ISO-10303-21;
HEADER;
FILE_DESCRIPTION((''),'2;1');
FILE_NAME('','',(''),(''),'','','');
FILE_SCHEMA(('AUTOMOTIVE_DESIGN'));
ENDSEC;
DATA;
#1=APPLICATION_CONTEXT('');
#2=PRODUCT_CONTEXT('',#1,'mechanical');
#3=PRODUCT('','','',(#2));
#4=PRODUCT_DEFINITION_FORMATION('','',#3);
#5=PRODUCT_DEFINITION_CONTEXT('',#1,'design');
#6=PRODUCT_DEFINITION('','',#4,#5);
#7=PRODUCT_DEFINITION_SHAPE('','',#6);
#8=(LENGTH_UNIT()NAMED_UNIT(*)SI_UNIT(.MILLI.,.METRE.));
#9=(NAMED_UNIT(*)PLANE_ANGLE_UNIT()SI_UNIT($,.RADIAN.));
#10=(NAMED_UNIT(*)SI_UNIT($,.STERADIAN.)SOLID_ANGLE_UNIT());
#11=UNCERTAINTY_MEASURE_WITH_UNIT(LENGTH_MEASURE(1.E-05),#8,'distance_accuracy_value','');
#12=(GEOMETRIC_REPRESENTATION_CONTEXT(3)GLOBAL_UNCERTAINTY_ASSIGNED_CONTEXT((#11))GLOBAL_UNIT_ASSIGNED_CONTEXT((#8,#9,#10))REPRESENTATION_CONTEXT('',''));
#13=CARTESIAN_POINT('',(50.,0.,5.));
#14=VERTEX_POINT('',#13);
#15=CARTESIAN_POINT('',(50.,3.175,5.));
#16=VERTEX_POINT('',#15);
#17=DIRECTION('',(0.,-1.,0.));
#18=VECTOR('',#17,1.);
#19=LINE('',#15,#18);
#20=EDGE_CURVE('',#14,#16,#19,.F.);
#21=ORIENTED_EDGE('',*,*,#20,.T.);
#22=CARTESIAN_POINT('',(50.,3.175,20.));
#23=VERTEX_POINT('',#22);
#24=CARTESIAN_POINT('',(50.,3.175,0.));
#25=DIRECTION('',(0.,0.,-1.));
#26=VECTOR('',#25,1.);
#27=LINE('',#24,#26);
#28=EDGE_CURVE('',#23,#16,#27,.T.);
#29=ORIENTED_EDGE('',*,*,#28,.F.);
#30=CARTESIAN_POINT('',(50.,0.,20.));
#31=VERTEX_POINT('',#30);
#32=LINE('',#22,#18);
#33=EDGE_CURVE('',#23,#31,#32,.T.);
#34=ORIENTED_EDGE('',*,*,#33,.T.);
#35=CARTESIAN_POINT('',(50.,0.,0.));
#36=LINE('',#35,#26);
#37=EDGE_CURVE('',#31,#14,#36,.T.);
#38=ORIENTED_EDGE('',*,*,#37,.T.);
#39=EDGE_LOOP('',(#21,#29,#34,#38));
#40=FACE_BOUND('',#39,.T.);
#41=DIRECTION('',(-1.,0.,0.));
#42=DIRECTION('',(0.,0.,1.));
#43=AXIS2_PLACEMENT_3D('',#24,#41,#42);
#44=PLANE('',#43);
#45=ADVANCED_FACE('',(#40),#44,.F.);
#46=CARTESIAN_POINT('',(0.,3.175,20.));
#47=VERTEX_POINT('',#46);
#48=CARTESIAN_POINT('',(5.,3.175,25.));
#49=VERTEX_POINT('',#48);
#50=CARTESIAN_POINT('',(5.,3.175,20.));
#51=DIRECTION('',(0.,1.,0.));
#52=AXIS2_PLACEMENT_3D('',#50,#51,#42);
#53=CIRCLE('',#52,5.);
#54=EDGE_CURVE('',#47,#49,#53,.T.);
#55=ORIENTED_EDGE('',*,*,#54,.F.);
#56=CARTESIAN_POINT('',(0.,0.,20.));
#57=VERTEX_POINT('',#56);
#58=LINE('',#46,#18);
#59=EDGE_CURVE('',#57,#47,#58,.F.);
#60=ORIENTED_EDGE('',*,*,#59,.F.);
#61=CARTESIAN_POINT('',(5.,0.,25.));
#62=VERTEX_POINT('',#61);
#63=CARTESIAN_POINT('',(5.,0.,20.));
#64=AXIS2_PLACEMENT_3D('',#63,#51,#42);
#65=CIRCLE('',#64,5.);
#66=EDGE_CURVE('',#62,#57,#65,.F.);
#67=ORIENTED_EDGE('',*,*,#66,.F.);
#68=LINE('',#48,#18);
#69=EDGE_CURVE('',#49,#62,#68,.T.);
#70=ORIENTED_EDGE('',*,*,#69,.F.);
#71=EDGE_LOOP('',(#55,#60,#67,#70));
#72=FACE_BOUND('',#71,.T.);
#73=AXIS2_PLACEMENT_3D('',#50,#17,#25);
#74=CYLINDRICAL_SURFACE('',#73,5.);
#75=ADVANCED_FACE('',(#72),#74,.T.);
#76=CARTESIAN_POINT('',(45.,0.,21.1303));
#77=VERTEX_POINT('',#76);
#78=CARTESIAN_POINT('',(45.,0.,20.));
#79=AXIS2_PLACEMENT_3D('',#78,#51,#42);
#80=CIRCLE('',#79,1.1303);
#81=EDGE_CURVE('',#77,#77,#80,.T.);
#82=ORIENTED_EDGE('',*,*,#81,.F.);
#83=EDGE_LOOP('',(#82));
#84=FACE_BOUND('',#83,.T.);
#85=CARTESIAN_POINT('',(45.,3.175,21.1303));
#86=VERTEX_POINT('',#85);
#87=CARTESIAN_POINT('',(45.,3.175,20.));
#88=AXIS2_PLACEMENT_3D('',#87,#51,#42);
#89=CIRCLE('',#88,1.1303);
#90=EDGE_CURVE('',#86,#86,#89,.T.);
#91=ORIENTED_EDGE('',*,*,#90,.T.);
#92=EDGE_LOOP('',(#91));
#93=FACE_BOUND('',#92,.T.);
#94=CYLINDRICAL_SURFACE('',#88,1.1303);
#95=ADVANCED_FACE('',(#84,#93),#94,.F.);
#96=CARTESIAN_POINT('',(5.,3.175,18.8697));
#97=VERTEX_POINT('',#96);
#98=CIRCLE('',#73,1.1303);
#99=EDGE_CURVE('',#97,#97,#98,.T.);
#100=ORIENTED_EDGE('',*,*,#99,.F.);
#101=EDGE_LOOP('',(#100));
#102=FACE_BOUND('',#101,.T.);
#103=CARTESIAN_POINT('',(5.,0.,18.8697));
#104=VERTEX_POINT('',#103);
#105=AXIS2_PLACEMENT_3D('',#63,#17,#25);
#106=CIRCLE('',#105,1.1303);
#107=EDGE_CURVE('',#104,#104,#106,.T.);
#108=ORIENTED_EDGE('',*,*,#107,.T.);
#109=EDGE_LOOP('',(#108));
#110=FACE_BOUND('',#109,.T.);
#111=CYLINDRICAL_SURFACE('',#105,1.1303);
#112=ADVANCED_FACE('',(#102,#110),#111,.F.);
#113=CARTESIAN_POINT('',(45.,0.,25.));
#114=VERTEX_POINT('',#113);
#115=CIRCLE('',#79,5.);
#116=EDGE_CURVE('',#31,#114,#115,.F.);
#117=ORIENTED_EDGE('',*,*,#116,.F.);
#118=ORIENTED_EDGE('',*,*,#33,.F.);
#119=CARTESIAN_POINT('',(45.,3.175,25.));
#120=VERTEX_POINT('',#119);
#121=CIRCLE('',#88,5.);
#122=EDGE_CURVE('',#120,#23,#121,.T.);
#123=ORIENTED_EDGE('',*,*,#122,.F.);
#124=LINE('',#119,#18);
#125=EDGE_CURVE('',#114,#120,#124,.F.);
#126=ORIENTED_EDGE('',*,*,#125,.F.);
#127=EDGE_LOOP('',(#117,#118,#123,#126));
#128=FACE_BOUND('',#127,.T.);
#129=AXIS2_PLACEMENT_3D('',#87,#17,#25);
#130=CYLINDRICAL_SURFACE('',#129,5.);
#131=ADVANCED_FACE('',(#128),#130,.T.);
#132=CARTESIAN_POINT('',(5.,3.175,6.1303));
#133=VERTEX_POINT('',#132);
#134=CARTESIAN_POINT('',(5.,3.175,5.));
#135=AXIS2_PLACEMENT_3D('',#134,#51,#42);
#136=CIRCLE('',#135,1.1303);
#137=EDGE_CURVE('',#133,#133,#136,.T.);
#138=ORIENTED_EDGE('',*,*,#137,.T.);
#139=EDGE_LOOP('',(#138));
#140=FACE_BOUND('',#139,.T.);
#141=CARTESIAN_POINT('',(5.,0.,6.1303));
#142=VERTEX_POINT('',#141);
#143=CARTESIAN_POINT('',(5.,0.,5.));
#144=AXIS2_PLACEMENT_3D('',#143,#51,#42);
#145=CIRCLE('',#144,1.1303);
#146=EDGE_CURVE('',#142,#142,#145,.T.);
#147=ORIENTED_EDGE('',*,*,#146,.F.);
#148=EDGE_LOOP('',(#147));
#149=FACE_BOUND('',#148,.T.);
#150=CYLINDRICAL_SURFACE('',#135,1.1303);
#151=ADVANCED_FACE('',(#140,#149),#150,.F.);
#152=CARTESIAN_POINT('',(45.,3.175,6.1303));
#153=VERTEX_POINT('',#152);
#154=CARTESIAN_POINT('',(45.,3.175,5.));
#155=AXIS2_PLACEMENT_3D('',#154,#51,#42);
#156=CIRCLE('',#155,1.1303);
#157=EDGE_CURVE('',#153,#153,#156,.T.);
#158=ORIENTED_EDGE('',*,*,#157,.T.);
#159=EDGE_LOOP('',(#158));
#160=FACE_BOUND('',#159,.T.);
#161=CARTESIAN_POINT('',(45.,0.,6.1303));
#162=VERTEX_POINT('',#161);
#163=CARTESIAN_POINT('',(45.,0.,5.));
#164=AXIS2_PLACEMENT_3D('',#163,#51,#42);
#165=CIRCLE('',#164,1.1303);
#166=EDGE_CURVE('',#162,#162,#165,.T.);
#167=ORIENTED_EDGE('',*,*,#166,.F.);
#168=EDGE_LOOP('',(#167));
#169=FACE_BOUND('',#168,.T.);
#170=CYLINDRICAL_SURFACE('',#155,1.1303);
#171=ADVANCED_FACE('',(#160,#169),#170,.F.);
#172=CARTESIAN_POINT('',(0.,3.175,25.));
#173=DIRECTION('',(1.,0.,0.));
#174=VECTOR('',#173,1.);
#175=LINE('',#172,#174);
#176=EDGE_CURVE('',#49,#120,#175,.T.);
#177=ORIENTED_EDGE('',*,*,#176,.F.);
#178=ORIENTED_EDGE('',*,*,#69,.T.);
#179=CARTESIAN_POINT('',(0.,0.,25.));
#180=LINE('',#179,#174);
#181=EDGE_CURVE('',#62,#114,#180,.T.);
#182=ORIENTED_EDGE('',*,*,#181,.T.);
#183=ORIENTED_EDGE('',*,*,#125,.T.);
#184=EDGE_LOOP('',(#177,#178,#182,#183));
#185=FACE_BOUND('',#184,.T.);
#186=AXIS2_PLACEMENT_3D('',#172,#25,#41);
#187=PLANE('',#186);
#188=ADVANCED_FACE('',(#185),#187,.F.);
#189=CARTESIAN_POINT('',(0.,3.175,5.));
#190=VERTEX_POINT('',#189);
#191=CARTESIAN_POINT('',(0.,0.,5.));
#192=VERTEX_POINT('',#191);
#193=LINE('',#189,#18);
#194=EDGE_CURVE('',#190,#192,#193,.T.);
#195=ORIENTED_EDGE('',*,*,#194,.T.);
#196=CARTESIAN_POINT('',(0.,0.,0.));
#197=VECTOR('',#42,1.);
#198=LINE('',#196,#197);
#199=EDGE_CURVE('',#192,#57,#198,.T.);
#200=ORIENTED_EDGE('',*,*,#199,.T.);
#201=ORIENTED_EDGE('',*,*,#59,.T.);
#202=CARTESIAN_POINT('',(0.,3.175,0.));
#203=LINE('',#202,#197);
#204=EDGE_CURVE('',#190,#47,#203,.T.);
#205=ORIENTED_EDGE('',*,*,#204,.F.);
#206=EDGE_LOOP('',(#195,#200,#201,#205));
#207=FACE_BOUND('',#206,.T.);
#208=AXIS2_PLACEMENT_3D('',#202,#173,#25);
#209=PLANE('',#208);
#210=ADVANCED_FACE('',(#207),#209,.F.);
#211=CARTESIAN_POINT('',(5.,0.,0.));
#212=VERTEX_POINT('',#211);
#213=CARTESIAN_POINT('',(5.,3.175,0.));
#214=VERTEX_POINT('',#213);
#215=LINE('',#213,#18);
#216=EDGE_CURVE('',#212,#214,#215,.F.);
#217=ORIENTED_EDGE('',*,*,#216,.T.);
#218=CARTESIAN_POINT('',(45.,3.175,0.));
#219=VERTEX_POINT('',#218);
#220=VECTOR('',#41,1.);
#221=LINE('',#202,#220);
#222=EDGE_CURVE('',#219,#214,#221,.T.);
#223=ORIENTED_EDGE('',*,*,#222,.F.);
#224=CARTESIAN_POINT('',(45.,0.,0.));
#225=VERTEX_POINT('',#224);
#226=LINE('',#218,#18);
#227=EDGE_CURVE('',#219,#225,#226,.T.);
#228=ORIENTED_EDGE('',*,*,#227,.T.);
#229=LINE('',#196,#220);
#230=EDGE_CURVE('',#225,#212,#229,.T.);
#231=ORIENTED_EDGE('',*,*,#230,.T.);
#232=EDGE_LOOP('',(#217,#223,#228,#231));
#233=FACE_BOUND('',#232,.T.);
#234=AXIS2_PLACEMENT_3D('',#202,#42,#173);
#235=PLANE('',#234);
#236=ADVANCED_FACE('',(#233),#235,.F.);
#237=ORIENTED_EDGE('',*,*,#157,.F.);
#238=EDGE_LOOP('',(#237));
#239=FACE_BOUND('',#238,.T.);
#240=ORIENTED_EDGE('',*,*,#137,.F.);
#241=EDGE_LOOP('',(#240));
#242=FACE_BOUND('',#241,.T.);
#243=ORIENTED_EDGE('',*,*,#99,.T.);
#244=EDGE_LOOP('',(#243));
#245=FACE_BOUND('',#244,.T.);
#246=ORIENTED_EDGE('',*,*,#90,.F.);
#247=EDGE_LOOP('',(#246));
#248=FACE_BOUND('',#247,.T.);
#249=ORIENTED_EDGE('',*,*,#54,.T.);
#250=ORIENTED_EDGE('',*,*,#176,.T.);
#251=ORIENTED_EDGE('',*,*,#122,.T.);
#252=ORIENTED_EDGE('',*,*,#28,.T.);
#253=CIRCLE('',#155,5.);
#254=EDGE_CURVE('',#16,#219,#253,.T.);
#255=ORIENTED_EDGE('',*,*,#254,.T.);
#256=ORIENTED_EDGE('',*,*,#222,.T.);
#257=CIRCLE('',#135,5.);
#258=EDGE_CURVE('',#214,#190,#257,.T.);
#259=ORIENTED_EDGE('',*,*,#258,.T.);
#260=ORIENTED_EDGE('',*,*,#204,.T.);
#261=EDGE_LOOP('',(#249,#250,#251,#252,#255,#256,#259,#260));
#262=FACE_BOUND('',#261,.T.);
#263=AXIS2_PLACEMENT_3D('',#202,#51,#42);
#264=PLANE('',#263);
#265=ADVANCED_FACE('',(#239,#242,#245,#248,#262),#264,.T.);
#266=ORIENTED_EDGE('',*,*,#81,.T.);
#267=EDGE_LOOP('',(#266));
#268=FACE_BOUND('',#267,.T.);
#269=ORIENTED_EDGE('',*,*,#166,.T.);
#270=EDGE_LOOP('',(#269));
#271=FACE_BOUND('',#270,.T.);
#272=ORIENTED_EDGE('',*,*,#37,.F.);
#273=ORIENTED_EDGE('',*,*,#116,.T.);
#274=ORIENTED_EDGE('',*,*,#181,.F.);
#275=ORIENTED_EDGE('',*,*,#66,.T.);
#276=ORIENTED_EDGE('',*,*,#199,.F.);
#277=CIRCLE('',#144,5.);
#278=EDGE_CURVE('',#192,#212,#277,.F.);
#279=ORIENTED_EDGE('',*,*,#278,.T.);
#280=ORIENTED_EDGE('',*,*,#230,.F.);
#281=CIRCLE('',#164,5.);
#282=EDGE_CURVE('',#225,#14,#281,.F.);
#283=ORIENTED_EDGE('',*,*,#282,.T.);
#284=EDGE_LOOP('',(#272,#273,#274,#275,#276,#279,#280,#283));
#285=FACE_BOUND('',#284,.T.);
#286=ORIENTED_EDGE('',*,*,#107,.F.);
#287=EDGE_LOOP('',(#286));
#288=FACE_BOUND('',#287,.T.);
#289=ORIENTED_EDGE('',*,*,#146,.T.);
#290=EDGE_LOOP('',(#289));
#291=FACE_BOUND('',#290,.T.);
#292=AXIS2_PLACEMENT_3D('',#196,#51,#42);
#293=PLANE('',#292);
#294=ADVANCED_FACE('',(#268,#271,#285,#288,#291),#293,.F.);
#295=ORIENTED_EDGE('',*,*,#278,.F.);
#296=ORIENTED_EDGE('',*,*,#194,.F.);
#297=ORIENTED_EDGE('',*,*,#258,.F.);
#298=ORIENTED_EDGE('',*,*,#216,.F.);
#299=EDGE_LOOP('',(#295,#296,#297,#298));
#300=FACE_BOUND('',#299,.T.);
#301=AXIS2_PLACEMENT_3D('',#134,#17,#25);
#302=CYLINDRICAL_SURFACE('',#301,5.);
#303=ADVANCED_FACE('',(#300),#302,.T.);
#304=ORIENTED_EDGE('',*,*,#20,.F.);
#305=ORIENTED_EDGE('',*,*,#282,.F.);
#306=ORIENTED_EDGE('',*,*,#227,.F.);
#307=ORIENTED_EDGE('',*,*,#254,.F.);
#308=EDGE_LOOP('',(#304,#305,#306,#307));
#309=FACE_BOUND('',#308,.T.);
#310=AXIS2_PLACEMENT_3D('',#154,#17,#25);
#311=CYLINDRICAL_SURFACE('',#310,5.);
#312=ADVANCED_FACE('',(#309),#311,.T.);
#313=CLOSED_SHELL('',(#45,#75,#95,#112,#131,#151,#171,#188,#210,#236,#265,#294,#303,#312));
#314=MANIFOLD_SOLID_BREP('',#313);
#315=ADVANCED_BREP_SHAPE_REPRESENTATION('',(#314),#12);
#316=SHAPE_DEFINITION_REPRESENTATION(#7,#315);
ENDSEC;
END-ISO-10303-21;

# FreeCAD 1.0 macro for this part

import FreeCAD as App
import Part
import Sketcher

V = App.Vector


def edges_at(feature, points):
    """Names of the edges that pass closest to the given points."""
    edges = feature.Shape.Edges
    near = lambda p: min(range(len(edges)), key=lambda i: edges[i].distToShape(Part.Vertex(*p))[0])
    return sorted({f"Edge{near(p) + 1}" for p in points})


def add_polygon(sketch, points):
    """Adds a closed chain of lines whose ends are joined by coincident constraints."""
    first, n = sketch.GeometryCount, len(points)
    for a, b in zip(points, points[1:] + points[:1]):
        sketch.addGeometry(Part.LineSegment(App.Vector(*a, 0), App.Vector(*b, 0)), False)
    for i in range(n):
        sketch.addConstraint(Sketcher.Constraint("Coincident", first + i, 2, first + (i + 1) % n, 1))

doc = App.newDocument("Part")
body = doc.addObject("PartDesign::Body", "Body")

# Sketch on XZ plane
sketch1 = body.newObject("Sketcher::SketchObject", "Sketch")
sketch1.AttachmentSupport = (doc.getObject("XZ_Plane"), [""])
sketch1.MapMode = "FlatFace"
add_polygon(sketch1, [(0, 0), (0, 25), (50, 25), (50, 0)])  # lines 0-3
sketch1.addGeometry(Part.Circle(V(5, 20, 0), V(0, 0, 1), 1.13), False)  # 4
sketch1.addGeometry(Part.Circle(V(45, 20, 0), V(0, 0, 1), 1.13), False)  # 5
sketch1.addGeometry(Part.Circle(V(5, 5, 0), V(0, 0, 1), 1.13), False)  # 6
sketch1.addGeometry(Part.Circle(V(45, 5, 0), V(0, 0, 1), 1.13), False)  # 7
sketch1.addConstraint(Sketcher.Constraint("Vertical", 0))
sketch1.addConstraint(Sketcher.Constraint("Horizontal", 1))
sketch1.addConstraint(Sketcher.Constraint("Vertical", 2))
sketch1.addConstraint(Sketcher.Constraint("Horizontal", 3))
sketch1.addConstraint(Sketcher.Constraint("Coincident", 3, 2, -1, 1))
sketch1.addConstraint(Sketcher.Constraint("Equal", 4, 5))
sketch1.addConstraint(Sketcher.Constraint("Equal", 5, 6))
sketch1.addConstraint(Sketcher.Constraint("Equal", 6, 7))
sketch1.addConstraint(Sketcher.Constraint("Horizontal", 4, 3, 5, 3))
sketch1.addConstraint(Sketcher.Constraint("Horizontal", 6, 3, 7, 3))
sketch1.addConstraint(Sketcher.Constraint("Vertical", 4, 3, 6, 3))
sketch1.addConstraint(Sketcher.Constraint("Vertical", 5, 3, 7, 3))
sketch1.addConstraint(Sketcher.Constraint("Diameter", 4, 2.26))
sketch1.addConstraint(Sketcher.Constraint("DistanceX", 1, 1, 1, 2, 50.0))
sketch1.addConstraint(Sketcher.Constraint("DistanceY", 0, 1, 0, 2, 25.0))
sketch1.addConstraint(Sketcher.Constraint("DistanceX", -1, 1, 4, 3, 5.0))
sketch1.addConstraint(Sketcher.Constraint("DistanceY", -1, 1, 4, 3, 20.0))
sketch1.addConstraint(Sketcher.Constraint("DistanceX", -1, 1, 5, 3, 45.0))
sketch1.addConstraint(Sketcher.Constraint("DistanceY", -1, 1, 6, 3, 5.0))
pad1 = body.newObject("PartDesign::Pad", "Pad")
pad1.Profile = sketch1
pad1.Length = 3.175
pad1.Reversed = True
doc.recompute()

fillet = body.newObject("PartDesign::Fillet", "Fillet")
fillet.Base = (pad1, edges_at(pad1, [
    (0, 1.587, 0),
    (50, 1.587, 0),
    (50, 1.587, 25),
    (0, 1.587, 25),
]))
fillet.Radius = 5

# Sketch on XZ plane
sketch2 = body.newObject("Sketcher::SketchObject", "Sketch001")
sketch2.AttachmentSupport = (doc.getObject("XZ_Plane"), [""])
sketch2.MapMode = "FlatFace"
sketch2.AttachmentOffset = App.Placement(V(0, 0, -3.175), App.Rotation())
sketch2.addGeometry(Part.Circle(V(5, 5, 0), V(0, 0, 1), 1.1303), False)
sketch2.addGeometry(Part.Circle(V(45, 5, 0), V(0, 0, 1), 1.1303), False)
sketch2.addGeometry(Part.Circle(V(45, 20, 0), V(0, 0, 1), 1.1303), False)
sketch2.addConstraint(Sketcher.Constraint("Equal", 0, 1))
sketch2.addConstraint(Sketcher.Constraint("Equal", 1, 2))
sketch2.addConstraint(Sketcher.Constraint("Horizontal", 0, 3, 1, 3))
sketch2.addConstraint(Sketcher.Constraint("Vertical", 1, 3, 2, 3))
sketch2.addConstraint(Sketcher.Constraint("DistanceX", -1, 1, 0, 3, 5.0))
sketch2.addConstraint(Sketcher.Constraint("DistanceY", -1, 1, 0, 3, 5.0))
sketch2.addConstraint(Sketcher.Constraint("DistanceX", -1, 1, 1, 3, 45.0))
sketch2.addConstraint(Sketcher.Constraint("DistanceY", -1, 1, 2, 3, 20.0))
sketch2.addConstraint(Sketcher.Constraint("Diameter", 0, 2.2606))
doc.recompute()
hole = body.newObject("PartDesign::Hole", "Hole")
hole.Profile = sketch2
hole.ThreadType = "None"
hole.Diameter = 2.2606
hole.DepthType = "ThroughAll"
hole.Reversed = True

# Sketch on XZ plane
sketch3 = body.newObject("Sketcher::SketchObject", "Sketch002")
sketch3.AttachmentSupport = (doc.getObject("XZ_Plane"), [""])
sketch3.MapMode = "FlatFace"
sketch3.addGeometry(Part.Circle(V(5, 20, 0), V(0, 0, 1), 1.1303), False)
sketch3.addConstraint(Sketcher.Constraint("DistanceX", -1, 1, 0, 3, 5.0))
sketch3.addConstraint(Sketcher.Constraint("DistanceY", -1, 1, 0, 3, 20.0))
sketch3.addConstraint(Sketcher.Constraint("Diameter", 0, 2.2606))
doc.recompute()
hole2 = body.newObject("PartDesign::Hole", "Hole001")
hole2.Profile = sketch3
hole2.ThreadType = "None"
hole2.Diameter = 2.2606
hole2.DepthType = "ThroughAll"
hole2.Reversed = True

doc.recompute()
